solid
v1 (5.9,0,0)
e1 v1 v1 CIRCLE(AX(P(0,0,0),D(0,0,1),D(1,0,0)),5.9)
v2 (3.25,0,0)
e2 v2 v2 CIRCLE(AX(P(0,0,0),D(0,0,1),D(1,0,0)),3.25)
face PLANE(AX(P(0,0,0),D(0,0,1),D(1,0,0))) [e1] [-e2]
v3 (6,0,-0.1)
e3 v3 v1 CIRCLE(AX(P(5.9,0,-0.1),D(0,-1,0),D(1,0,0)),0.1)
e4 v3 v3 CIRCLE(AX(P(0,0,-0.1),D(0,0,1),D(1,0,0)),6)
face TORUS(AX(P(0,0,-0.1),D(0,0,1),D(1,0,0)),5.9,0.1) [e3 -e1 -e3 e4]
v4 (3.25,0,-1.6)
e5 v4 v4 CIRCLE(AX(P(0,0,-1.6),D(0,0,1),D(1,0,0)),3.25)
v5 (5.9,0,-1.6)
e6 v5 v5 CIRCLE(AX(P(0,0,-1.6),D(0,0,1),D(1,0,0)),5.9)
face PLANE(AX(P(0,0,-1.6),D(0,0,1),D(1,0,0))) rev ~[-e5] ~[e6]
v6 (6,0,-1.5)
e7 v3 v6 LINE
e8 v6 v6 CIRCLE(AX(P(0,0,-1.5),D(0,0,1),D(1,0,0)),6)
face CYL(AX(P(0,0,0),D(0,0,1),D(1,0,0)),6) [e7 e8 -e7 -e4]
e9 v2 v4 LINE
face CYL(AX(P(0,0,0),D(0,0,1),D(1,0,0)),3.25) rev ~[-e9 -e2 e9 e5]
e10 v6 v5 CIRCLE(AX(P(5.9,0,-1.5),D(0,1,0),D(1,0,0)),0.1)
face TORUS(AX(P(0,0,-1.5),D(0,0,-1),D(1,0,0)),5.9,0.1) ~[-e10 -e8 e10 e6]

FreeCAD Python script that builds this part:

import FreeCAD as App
import Part
import Sketcher
from FreeCAD import Vector


def edges_at(feature, points):
    """Names of the edges that pass closest to the given points."""
    edges = feature.Shape.Edges
    near = lambda p: min(range(len(edges)), key=lambda i: edges[i].distToShape(Part.Vertex(*p))[0])
    return sorted({f"Edge{near(p) + 1}" for p in points})

doc = App.newDocument("Part")
body = doc.addObject("PartDesign::Body", "Body")

sketch1 = doc.addObject("Sketcher::SketchObject", "Sketch")
body.addObject(sketch1)
sketch1.AttachmentSupport = (doc.XY_Plane, [""])
sketch1.MapMode = "FlatFace"
sketch1.addGeometry([
    Part.Circle(Vector(0, 0, 0), Vector(0, 0, 1), 6),
    Part.Circle(Vector(0, 0, 0), Vector(0, 0, 1), 3.2),
], False)
sketch1.addConstraint([
    Sketcher.Constraint("Coincident", 0, 3, -1, 1),
    Sketcher.Constraint("Coincident", 1, 3, -1, 1),
    Sketcher.Constraint("Diameter", 0, 12.0),
    Sketcher.Constraint("Diameter", 1, 6.5),
])
pad1 = doc.addObject("PartDesign::Pad", "Pad")
body.addObject(pad1)
pad1.Profile = sketch1
pad1.Length = 1.6
pad1.Reversed = True
doc.recompute()

fillet = doc.addObject("PartDesign::Fillet", "Fillet")
body.addObject(fillet)
fillet.Base = (pad1, edges_at(pad1, [(-6, 0, 0), (-6, 0, -1.6)]))
fillet.Radius = 0.1

doc.recompute()
